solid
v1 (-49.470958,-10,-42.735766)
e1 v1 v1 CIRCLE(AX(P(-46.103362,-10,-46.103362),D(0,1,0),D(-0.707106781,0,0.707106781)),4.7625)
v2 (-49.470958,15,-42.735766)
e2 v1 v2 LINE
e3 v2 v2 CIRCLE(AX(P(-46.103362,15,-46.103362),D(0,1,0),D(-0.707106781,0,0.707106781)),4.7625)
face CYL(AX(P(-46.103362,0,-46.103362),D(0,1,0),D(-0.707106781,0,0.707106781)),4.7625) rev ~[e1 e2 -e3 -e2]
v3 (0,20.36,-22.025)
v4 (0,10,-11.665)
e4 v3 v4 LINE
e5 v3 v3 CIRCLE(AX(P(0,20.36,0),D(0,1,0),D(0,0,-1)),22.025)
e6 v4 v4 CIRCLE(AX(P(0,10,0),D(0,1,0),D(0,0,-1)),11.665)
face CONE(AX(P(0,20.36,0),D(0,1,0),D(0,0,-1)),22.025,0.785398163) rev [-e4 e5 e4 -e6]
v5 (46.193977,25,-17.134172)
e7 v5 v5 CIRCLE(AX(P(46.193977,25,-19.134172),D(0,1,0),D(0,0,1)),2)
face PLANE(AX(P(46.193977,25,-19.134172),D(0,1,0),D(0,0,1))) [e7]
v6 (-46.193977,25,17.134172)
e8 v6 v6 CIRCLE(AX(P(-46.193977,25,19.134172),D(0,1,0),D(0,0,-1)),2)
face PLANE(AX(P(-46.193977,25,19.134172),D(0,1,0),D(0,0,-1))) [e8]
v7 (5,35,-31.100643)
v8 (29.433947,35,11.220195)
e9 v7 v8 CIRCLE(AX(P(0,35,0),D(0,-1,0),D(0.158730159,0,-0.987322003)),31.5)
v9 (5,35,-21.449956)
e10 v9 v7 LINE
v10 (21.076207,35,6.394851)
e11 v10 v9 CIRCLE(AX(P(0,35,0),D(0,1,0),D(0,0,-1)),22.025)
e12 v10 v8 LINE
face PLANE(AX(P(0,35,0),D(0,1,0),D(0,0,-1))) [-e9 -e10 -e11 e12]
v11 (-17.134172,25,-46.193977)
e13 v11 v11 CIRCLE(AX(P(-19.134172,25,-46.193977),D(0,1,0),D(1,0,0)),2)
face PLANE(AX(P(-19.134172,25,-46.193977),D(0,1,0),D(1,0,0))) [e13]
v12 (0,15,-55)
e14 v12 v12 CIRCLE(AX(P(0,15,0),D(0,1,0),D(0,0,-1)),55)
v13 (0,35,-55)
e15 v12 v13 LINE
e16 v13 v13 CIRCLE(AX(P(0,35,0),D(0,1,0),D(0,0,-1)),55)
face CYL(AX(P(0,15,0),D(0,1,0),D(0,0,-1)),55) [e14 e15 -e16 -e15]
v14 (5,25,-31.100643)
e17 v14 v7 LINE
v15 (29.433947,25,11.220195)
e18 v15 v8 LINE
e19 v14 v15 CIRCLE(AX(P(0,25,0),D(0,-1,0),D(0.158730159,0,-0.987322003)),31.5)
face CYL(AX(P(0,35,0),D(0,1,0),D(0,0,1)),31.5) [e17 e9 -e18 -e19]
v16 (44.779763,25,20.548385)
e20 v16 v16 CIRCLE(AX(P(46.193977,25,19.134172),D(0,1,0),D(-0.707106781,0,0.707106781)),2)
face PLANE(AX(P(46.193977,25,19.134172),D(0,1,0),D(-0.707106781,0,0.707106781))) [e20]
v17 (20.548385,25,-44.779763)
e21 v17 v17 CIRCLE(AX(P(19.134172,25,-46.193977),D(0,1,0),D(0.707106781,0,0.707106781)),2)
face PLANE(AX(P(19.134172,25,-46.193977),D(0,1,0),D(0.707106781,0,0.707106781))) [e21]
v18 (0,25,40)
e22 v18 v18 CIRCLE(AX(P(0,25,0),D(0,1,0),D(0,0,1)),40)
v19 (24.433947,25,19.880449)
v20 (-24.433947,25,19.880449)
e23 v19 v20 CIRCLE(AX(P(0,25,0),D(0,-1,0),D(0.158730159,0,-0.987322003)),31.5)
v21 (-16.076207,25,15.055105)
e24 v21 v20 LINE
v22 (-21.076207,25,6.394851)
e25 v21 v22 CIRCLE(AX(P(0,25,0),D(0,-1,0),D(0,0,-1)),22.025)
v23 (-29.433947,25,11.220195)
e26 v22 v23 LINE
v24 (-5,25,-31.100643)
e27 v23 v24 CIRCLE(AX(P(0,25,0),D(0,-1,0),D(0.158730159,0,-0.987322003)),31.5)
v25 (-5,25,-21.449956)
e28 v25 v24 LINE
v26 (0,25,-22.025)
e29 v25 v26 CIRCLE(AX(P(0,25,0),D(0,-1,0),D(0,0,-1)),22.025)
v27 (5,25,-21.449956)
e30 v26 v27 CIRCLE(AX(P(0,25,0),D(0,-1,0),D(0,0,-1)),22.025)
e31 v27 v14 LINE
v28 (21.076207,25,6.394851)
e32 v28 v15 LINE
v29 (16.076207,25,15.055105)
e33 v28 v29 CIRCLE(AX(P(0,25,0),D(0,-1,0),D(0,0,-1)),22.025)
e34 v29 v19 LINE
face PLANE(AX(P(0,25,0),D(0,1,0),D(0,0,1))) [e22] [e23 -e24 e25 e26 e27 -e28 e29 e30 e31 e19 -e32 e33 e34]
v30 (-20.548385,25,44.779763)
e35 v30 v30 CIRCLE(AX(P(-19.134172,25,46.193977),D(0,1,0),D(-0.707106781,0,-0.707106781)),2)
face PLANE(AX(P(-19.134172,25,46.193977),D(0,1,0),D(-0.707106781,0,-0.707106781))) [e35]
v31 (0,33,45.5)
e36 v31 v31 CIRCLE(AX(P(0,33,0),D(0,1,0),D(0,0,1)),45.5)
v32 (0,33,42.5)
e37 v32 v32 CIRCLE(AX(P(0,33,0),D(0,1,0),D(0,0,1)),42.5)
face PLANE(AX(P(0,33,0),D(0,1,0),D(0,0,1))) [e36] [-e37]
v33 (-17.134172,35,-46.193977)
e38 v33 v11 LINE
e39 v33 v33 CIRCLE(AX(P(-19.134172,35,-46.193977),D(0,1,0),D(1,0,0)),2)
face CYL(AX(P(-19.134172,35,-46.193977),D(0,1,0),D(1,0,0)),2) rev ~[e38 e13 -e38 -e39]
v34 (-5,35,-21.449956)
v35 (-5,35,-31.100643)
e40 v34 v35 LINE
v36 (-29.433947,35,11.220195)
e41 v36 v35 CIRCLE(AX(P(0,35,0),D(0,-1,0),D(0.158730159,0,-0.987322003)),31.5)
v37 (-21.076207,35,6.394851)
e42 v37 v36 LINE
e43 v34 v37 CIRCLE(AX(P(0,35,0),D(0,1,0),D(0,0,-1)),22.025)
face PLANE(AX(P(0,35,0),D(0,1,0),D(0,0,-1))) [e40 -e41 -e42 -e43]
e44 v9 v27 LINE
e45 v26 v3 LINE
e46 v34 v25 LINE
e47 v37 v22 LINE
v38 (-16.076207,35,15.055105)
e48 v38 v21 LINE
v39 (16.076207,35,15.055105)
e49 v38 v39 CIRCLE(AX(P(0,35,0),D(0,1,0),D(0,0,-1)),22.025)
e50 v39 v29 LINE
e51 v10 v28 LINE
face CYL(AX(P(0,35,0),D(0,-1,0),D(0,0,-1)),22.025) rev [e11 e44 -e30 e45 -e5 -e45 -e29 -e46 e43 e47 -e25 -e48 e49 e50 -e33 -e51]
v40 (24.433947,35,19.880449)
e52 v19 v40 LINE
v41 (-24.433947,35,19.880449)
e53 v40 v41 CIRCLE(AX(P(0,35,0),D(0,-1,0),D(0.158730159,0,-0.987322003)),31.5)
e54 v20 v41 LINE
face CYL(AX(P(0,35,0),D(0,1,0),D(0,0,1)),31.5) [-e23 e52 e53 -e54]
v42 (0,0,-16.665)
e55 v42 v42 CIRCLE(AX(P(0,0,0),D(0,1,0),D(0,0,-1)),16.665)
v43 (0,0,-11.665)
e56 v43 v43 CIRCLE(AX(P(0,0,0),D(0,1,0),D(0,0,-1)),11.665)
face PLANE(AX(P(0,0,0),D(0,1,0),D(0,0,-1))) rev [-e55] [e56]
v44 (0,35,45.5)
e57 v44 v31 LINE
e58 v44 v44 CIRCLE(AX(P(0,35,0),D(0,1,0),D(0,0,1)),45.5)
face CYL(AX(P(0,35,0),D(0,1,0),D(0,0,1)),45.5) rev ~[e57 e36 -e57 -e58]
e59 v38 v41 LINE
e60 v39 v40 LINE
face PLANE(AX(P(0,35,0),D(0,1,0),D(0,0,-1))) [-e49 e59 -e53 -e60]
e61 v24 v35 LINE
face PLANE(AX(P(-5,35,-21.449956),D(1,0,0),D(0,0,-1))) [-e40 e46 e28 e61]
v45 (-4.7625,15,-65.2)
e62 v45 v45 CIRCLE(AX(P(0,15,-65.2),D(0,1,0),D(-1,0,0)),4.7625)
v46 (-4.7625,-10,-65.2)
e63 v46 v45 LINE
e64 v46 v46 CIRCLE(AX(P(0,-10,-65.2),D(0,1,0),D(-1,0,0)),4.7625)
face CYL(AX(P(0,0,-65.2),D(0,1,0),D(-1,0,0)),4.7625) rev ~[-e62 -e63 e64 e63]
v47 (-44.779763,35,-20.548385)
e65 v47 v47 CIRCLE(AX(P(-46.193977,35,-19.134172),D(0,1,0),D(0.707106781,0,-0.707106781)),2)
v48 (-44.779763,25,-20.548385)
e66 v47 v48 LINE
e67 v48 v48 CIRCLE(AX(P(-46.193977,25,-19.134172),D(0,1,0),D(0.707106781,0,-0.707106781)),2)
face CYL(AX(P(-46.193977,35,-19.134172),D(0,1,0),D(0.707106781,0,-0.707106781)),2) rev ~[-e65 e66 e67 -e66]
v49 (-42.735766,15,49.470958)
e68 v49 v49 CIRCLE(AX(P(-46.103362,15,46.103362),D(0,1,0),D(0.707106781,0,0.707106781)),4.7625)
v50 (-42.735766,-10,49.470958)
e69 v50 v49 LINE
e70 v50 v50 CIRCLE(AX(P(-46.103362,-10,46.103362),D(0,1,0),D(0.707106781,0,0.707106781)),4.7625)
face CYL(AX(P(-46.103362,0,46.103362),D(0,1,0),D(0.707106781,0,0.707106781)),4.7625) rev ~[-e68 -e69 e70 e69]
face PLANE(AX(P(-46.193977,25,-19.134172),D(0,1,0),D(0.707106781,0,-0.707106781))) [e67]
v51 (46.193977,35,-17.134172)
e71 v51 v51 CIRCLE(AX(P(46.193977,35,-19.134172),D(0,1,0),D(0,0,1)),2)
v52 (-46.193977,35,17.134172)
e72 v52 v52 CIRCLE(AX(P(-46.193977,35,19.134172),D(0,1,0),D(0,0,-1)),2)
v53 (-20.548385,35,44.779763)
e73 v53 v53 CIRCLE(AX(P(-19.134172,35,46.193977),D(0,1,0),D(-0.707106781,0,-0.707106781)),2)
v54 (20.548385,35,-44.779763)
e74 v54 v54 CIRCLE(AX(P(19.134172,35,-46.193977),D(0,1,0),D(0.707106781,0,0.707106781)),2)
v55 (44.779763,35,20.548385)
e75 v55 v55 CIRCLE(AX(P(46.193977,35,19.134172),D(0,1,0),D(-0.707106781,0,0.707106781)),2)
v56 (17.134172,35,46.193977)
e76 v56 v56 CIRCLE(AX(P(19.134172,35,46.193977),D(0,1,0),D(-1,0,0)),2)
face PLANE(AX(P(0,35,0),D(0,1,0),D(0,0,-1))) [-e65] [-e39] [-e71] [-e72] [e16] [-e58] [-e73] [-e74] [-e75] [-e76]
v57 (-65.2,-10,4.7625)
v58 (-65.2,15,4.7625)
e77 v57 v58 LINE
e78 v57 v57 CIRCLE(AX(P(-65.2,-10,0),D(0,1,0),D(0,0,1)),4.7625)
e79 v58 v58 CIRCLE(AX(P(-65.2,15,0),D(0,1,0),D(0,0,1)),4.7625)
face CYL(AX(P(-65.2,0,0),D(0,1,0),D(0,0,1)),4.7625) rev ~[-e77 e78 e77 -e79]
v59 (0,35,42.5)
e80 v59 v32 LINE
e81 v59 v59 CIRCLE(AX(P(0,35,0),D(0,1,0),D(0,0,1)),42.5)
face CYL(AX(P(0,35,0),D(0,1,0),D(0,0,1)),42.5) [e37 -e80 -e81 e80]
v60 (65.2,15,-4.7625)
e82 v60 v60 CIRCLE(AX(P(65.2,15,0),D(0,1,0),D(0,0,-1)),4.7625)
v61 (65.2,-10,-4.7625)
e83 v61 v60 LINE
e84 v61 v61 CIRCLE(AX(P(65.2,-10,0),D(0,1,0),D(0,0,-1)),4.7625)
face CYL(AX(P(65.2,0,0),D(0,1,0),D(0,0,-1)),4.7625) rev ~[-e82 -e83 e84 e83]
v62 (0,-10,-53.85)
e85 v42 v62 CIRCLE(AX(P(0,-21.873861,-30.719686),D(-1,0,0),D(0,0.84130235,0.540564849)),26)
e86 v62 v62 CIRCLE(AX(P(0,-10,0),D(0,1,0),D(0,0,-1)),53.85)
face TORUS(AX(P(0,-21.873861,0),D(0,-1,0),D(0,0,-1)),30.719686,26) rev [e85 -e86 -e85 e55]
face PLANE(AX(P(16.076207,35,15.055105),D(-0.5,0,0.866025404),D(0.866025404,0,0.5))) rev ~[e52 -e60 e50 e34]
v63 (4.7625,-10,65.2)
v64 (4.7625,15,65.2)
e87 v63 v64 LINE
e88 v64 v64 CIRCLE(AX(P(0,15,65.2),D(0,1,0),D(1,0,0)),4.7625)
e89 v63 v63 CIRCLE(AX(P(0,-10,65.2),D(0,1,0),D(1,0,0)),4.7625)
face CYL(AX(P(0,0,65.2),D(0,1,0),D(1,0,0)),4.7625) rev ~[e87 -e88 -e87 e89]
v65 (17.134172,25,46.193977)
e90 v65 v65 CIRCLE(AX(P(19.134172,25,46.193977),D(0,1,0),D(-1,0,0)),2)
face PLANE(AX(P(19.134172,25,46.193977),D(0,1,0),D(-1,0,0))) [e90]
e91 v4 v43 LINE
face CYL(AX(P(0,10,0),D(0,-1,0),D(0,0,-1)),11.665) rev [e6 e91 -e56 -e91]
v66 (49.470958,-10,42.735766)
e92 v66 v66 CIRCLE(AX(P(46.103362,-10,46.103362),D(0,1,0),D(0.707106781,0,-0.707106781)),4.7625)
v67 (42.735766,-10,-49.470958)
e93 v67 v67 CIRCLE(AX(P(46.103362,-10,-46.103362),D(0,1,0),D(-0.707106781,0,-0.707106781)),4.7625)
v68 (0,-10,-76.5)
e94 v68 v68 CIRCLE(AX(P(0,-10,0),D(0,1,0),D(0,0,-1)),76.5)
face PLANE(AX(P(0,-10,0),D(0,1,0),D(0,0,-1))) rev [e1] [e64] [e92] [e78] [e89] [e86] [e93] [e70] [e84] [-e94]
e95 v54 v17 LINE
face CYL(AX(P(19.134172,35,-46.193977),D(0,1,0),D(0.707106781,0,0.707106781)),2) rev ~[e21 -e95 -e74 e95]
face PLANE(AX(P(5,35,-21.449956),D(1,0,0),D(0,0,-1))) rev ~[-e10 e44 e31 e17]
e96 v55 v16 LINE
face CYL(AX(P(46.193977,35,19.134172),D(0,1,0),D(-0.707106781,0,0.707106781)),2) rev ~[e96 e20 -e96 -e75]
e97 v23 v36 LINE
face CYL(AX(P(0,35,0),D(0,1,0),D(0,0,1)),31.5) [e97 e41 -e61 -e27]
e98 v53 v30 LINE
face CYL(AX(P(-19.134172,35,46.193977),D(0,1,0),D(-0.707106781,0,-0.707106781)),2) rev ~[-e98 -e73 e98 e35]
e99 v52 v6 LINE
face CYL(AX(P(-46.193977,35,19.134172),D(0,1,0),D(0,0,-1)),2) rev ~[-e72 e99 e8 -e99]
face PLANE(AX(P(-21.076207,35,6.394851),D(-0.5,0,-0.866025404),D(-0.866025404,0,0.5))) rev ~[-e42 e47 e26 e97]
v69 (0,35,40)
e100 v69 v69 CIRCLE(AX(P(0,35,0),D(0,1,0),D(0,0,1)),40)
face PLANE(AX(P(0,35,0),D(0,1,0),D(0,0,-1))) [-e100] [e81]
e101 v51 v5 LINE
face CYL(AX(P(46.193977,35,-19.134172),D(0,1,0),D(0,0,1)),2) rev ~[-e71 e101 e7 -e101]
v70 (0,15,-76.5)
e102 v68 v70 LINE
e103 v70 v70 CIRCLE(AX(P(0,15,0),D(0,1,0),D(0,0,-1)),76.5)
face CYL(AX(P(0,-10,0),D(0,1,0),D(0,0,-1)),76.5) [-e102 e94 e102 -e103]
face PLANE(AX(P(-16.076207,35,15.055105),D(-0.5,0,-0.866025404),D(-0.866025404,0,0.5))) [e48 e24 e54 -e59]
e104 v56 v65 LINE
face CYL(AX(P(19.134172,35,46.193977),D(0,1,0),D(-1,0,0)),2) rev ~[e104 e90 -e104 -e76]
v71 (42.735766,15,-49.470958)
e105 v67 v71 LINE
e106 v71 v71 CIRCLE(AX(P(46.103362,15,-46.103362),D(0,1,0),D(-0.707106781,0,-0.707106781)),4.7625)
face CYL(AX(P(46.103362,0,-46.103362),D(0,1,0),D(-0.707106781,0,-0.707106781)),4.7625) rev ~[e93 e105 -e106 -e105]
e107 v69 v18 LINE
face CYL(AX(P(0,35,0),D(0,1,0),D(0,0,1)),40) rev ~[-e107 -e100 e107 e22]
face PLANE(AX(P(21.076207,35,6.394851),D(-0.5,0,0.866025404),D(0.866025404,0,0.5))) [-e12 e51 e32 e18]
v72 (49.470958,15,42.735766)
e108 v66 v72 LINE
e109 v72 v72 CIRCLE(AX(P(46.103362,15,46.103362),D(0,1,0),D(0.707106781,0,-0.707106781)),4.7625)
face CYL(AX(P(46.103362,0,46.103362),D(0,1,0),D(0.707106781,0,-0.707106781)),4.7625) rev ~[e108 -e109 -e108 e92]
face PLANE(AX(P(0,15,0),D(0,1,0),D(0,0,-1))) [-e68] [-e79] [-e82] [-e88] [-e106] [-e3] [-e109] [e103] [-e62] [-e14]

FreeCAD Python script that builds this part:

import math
import FreeCAD as App
import Part
import Sketcher

V = App.Vector
Q = App.Units.Quantity

doc = App.newDocument("Part")
body = doc.addObject("PartDesign::Body", "Body")

sketch1 = doc.addObject("Sketcher::SketchObject", "Sketch")
body.addObject(sketch1)
sketch1.AttachmentSupport = (doc.YZ_Plane, [""])
sketch1.MapMode = "FlatFace"
sketch1.addGeometry(Part.LineSegment(V(15, -76, 0), V(15, -55, 0)), False)
sketch1.addGeometry(Part.LineSegment(V(15, -55, 0), V(35, -55, 0)), False)
sketch1.addGeometry(Part.LineSegment(V(35, -55, 0), V(35, -22, 0)), False)
sketch1.addGeometry(Part.LineSegment(V(35, -22, 0), V(20, -22, 0)), False)
sketch1.addGeometry(Part.LineSegment(V(20, -22, 0), V(10, -12, 0)), False)
sketch1.addGeometry(Part.LineSegment(V(10, -12, 0), V(0, -12, 0)), False)
sketch1.addGeometry(Part.LineSegment(V(0, -12, 0), V(0, -17, 0)), False)
sketch1.addGeometry(Part.ArcOfCircle(Part.Circle(V(-22, -31, 0), V(0, 0, 1), 26), math.radians(-63), math.radians(33)), False)
sketch1.addGeometry(Part.LineSegment(V(-10, -54, 0), V(-10, -76, 0)), False)
sketch1.addGeometry(Part.LineSegment(V(-10, -76, 0), V(15, -76, 0)), False)
sketch1.addConstraint(Sketcher.Constraint("Coincident", 0, 2, 1, 1))
sketch1.addConstraint(Sketcher.Constraint("Coincident", 1, 2, 2, 1))
sketch1.addConstraint(Sketcher.Constraint("Coincident", 2, 2, 3, 1))
sketch1.addConstraint(Sketcher.Constraint("Coincident", 3, 2, 4, 1))
sketch1.addConstraint(Sketcher.Constraint("Coincident", 4, 2, 5, 1))
sketch1.addConstraint(Sketcher.Constraint("Coincident", 5, 2, 6, 1))
sketch1.addConstraint(Sketcher.Constraint("Coincident", 6, 2, 7, 2))
sketch1.addConstraint(Sketcher.Constraint("Coincident", 7, 1, 8, 1))
sketch1.addConstraint(Sketcher.Constraint("Coincident", 8, 2, 9, 1))
sketch1.addConstraint(Sketcher.Constraint("Coincident", 9, 2, 0, 1))
sketch1.addConstraint(Sketcher.Constraint("Vertical", 0))
sketch1.addConstraint(Sketcher.Constraint("Horizontal", 1))
sketch1.addConstraint(Sketcher.Constraint("Vertical", 2))
sketch1.addConstraint(Sketcher.Constraint("Horizontal", 3))
sketch1.addConstraint(Sketcher.Constraint("Horizontal", 5))
sketch1.addConstraint(Sketcher.Constraint("Vertical", 6))
sketch1.addConstraint(Sketcher.Constraint("Vertical", 8))
sketch1.addConstraint(Sketcher.Constraint("Horizontal", 9))
sketch1.addConstraint(Sketcher.Constraint("PointOnObject", 5, 2, -2))
sketch1.addConstraint(Sketcher.Constraint("Radius", 7, 26.0))
sketch1.addConstraint(Sketcher.Constraint("DistanceX", 1, 1, 1, 2, 20.0))
sketch1.addConstraint(Sketcher.Constraint("DistanceX", 5, 2, 5, 1, 10.0))
sketch1.addConstraint(Sketcher.Constraint("DistanceX", 9, 1, 9, 2, 25.0))
sketch1.addConstraint(Sketcher.Constraint("DistanceY", 6, 2, 6, 1, 5.0))
sketch1.addConstraint(Sketcher.Constraint("Angle", 4, Q("135 deg")))
sketch1.addConstraint(Sketcher.Constraint("DistanceY", 0, 1, 0, 2, 21.5))
sketch1.addConstraint(Sketcher.Constraint("DistanceX", -1, 1, 0, 2, 15.0))
sketch1.addConstraint(Sketcher.Constraint("DistanceY", 0, 2, -1, 1, 55.0))
sketch1.addConstraint(Sketcher.Constraint("DistanceX", 3, 2, 3, 1, 14.64))
sketch1.addConstraint(Sketcher.Constraint("DistanceY", 8, 2, 8, 1, 22.65))
sketch1.addConstraint(Sketcher.Constraint("DistanceY", 2, 1, 2, 2, 32.975))
revolution = doc.addObject("PartDesign::Revolution", "Revolution")
body.addObject(revolution)
revolution.Profile = sketch1
revolution.ReferenceAxis = (sketch1, ["H_Axis"])
revolution.Angle = 360

sketch2 = doc.addObject("Sketcher::SketchObject", "Sketch001")
body.addObject(sketch2)
sketch2.AttachmentSupport = (doc.XZ_Plane, [""])
sketch2.MapMode = "FlatFace"
sketch2.addGeometry(Part.Circle(V(-65.2, 0, 0), V(0, 0, 1), 4.8), False)
sketch2.addConstraint(Sketcher.Constraint("PointOnObject", 0, 3, -1))
sketch2.addConstraint(Sketcher.Constraint("Diameter", 0, 9.525))
sketch2.addConstraint(Sketcher.Constraint("DistanceX", 0, 3, -1, 1, 65.2))
pocket1 = doc.addObject("PartDesign::Pocket", "Pocket")
body.addObject(pocket1)
pocket1.Profile = sketch2
pocket1.Length = 229.415919
pocket1.Midplane = True
doc.recompute()

polarpattern = doc.addObject("PartDesign::PolarPattern", "PolarPattern")
body.addObject(polarpattern)
polarpattern.Originals = [pocket1]
polarpattern.Axis = (doc.Y_Axis, [""])
polarpattern.Angle = 360
polarpattern.Occurrences = 8
body.Tip = polarpattern

sketch3 = doc.addObject("Sketcher::SketchObject", "Sketch002")
body.addObject(sketch3)
sketch3.AttachmentSupport = (doc.XZ_Plane, [""])
sketch3.MapMode = "FlatFace"
sketch3.AttachmentOffset = App.Placement(V(0, 0, -35), App.Rotation())
sketch3.addGeometry(Part.Circle(V(0, 0, 0), V(0, 0, 1), 40), False)
sketch3.addGeometry(Part.Circle(V(0, 0, 0), V(0, 0, 1), 32), False)
sketch3.addConstraint(Sketcher.Constraint("Coincident", 0, 3, -1, 1))
sketch3.addConstraint(Sketcher.Constraint("Coincident", 1, 3, -1, 1))
sketch3.addConstraint(Sketcher.Constraint("Diameter", 0, 80.0))
sketch3.addConstraint(Sketcher.Constraint("Diameter", 1, 63.0))
pocket2 = doc.addObject("PartDesign::Pocket", "Pocket001")
body.addObject(pocket2)
pocket2.Profile = sketch3
pocket2.Length = 10
pocket2.Reversed = True

sketch4 = doc.addObject("Sketcher::SketchObject", "Sketch003")
body.addObject(sketch4)
sketch4.AttachmentSupport = (doc.XZ_Plane, [""])
sketch4.MapMode = "FlatFace"
sketch4.AttachmentOffset = App.Placement(V(0, 0, -35), App.Rotation())
sketch4.addGeometry(Part.LineSegment(V(-5, -32, 0), V(-5, -21, 0)), False)
sketch4.addGeometry(Part.LineSegment(V(-5, -21, 0), V(5, -21, 0)), False)
sketch4.addGeometry(Part.LineSegment(V(5, -21, 0), V(5, -32, 0)), False)
sketch4.addGeometry(Part.LineSegment(V(5, -32, 0), V(-5, -32, 0)), False)
sketch4.addConstraint(Sketcher.Constraint("Coincident", 0, 2, 1, 1))
sketch4.addConstraint(Sketcher.Constraint("Coincident", 1, 2, 2, 1))
sketch4.addConstraint(Sketcher.Constraint("Coincident", 2, 2, 3, 1))
sketch4.addConstraint(Sketcher.Constraint("Coincident", 3, 2, 0, 1))
sketch4.addConstraint(Sketcher.Constraint("Vertical", 0))
sketch4.addConstraint(Sketcher.Constraint("Horizontal", 1))
sketch4.addConstraint(Sketcher.Constraint("Vertical", 2))
sketch4.addConstraint(Sketcher.Constraint("Horizontal", 3))
sketch4.addConstraint(Sketcher.Constraint("DistanceX", 1, 1, 1, 2, 10.0))
sketch4.addConstraint(Sketcher.Constraint("DistanceX", 0, 2, -1, 1, 5.0))
sketch4.addConstraint(Sketcher.Constraint("DistanceY", 2, 2, -1, 1, 31.5))
sketch4.addConstraint(Sketcher.Constraint("DistanceY", 0, 1, 0, 2, 10.050044))
pocket3 = doc.addObject("PartDesign::Pocket", "Pocket002")
body.addObject(pocket3)
pocket3.Profile = sketch4
pocket3.Length = 10
pocket3.Reversed = True
doc.recompute()

polarpattern2 = doc.addObject("PartDesign::PolarPattern", "PolarPattern001")
body.addObject(polarpattern2)
polarpattern2.Originals = [pocket3]
polarpattern2.Axis = (doc.Y_Axis, [""])
polarpattern2.Angle = 360
polarpattern2.Occurrences = 3
body.Tip = polarpattern2

sketch5 = doc.addObject("Sketcher::SketchObject", "Sketch004")
body.addObject(sketch5)
sketch5.AttachmentSupport = (doc.XZ_Plane, [""])
sketch5.MapMode = "FlatFace"
sketch5.AttachmentOffset = App.Placement(V(0, 0, -35), App.Rotation())
sketch5.addGeometry(Part.Circle(V(46.2, -19.1, 0), V(0, 0, 1), 2), False)
sketch5.addConstraint(Sketcher.Constraint("Diameter", 0, 4.0))
sketch5.addConstraint(Sketcher.Constraint("DistanceY", 0, 3, -1, 1, 19.134172))
sketch5.addConstraint(Sketcher.Constraint("DistanceX", -1, 1, 0, 3, 46.193977))
pocket4 = doc.addObject("PartDesign::Pocket", "Pocket003")
body.addObject(pocket4)
pocket4.Profile = sketch5
pocket4.Length = 10
pocket4.Reversed = True
doc.recompute()

polarpattern3 = doc.addObject("PartDesign::PolarPattern", "PolarPattern002")
body.addObject(polarpattern3)
polarpattern3.Originals = [pocket4]
polarpattern3.Axis = (doc.Y_Axis, [""])
polarpattern3.Angle = 360
polarpattern3.Occurrences = 8
body.Tip = polarpattern3

sketch6 = doc.addObject("Sketcher::SketchObject", "Sketch005")
body.addObject(sketch6)
sketch6.AttachmentSupport = (doc.XZ_Plane, [""])
sketch6.MapMode = "FlatFace"
sketch6.AttachmentOffset = App.Placement(V(0, 0, -35), App.Rotation())
sketch6.addGeometry(Part.Circle(V(0, 0, 0), V(0, 0, 1), 46), False)
sketch6.addGeometry(Part.Circle(V(0, 0, 0), V(0, 0, 1), 42), False)
sketch6.addConstraint(Sketcher.Constraint("Coincident", 0, 3, -1, 1))
sketch6.addConstraint(Sketcher.Constraint("Coincident", 1, 3, -1, 1))
sketch6.addConstraint(Sketcher.Constraint("Diameter", 0, 91.0))
sketch6.addConstraint(Sketcher.Constraint("Diameter", 1, 85.0))
pocket5 = doc.addObject("PartDesign::Pocket", "Pocket004")
body.addObject(pocket5)
pocket5.Profile = sketch6
pocket5.Length = 2
pocket5.Reversed = True

doc.recompute()
